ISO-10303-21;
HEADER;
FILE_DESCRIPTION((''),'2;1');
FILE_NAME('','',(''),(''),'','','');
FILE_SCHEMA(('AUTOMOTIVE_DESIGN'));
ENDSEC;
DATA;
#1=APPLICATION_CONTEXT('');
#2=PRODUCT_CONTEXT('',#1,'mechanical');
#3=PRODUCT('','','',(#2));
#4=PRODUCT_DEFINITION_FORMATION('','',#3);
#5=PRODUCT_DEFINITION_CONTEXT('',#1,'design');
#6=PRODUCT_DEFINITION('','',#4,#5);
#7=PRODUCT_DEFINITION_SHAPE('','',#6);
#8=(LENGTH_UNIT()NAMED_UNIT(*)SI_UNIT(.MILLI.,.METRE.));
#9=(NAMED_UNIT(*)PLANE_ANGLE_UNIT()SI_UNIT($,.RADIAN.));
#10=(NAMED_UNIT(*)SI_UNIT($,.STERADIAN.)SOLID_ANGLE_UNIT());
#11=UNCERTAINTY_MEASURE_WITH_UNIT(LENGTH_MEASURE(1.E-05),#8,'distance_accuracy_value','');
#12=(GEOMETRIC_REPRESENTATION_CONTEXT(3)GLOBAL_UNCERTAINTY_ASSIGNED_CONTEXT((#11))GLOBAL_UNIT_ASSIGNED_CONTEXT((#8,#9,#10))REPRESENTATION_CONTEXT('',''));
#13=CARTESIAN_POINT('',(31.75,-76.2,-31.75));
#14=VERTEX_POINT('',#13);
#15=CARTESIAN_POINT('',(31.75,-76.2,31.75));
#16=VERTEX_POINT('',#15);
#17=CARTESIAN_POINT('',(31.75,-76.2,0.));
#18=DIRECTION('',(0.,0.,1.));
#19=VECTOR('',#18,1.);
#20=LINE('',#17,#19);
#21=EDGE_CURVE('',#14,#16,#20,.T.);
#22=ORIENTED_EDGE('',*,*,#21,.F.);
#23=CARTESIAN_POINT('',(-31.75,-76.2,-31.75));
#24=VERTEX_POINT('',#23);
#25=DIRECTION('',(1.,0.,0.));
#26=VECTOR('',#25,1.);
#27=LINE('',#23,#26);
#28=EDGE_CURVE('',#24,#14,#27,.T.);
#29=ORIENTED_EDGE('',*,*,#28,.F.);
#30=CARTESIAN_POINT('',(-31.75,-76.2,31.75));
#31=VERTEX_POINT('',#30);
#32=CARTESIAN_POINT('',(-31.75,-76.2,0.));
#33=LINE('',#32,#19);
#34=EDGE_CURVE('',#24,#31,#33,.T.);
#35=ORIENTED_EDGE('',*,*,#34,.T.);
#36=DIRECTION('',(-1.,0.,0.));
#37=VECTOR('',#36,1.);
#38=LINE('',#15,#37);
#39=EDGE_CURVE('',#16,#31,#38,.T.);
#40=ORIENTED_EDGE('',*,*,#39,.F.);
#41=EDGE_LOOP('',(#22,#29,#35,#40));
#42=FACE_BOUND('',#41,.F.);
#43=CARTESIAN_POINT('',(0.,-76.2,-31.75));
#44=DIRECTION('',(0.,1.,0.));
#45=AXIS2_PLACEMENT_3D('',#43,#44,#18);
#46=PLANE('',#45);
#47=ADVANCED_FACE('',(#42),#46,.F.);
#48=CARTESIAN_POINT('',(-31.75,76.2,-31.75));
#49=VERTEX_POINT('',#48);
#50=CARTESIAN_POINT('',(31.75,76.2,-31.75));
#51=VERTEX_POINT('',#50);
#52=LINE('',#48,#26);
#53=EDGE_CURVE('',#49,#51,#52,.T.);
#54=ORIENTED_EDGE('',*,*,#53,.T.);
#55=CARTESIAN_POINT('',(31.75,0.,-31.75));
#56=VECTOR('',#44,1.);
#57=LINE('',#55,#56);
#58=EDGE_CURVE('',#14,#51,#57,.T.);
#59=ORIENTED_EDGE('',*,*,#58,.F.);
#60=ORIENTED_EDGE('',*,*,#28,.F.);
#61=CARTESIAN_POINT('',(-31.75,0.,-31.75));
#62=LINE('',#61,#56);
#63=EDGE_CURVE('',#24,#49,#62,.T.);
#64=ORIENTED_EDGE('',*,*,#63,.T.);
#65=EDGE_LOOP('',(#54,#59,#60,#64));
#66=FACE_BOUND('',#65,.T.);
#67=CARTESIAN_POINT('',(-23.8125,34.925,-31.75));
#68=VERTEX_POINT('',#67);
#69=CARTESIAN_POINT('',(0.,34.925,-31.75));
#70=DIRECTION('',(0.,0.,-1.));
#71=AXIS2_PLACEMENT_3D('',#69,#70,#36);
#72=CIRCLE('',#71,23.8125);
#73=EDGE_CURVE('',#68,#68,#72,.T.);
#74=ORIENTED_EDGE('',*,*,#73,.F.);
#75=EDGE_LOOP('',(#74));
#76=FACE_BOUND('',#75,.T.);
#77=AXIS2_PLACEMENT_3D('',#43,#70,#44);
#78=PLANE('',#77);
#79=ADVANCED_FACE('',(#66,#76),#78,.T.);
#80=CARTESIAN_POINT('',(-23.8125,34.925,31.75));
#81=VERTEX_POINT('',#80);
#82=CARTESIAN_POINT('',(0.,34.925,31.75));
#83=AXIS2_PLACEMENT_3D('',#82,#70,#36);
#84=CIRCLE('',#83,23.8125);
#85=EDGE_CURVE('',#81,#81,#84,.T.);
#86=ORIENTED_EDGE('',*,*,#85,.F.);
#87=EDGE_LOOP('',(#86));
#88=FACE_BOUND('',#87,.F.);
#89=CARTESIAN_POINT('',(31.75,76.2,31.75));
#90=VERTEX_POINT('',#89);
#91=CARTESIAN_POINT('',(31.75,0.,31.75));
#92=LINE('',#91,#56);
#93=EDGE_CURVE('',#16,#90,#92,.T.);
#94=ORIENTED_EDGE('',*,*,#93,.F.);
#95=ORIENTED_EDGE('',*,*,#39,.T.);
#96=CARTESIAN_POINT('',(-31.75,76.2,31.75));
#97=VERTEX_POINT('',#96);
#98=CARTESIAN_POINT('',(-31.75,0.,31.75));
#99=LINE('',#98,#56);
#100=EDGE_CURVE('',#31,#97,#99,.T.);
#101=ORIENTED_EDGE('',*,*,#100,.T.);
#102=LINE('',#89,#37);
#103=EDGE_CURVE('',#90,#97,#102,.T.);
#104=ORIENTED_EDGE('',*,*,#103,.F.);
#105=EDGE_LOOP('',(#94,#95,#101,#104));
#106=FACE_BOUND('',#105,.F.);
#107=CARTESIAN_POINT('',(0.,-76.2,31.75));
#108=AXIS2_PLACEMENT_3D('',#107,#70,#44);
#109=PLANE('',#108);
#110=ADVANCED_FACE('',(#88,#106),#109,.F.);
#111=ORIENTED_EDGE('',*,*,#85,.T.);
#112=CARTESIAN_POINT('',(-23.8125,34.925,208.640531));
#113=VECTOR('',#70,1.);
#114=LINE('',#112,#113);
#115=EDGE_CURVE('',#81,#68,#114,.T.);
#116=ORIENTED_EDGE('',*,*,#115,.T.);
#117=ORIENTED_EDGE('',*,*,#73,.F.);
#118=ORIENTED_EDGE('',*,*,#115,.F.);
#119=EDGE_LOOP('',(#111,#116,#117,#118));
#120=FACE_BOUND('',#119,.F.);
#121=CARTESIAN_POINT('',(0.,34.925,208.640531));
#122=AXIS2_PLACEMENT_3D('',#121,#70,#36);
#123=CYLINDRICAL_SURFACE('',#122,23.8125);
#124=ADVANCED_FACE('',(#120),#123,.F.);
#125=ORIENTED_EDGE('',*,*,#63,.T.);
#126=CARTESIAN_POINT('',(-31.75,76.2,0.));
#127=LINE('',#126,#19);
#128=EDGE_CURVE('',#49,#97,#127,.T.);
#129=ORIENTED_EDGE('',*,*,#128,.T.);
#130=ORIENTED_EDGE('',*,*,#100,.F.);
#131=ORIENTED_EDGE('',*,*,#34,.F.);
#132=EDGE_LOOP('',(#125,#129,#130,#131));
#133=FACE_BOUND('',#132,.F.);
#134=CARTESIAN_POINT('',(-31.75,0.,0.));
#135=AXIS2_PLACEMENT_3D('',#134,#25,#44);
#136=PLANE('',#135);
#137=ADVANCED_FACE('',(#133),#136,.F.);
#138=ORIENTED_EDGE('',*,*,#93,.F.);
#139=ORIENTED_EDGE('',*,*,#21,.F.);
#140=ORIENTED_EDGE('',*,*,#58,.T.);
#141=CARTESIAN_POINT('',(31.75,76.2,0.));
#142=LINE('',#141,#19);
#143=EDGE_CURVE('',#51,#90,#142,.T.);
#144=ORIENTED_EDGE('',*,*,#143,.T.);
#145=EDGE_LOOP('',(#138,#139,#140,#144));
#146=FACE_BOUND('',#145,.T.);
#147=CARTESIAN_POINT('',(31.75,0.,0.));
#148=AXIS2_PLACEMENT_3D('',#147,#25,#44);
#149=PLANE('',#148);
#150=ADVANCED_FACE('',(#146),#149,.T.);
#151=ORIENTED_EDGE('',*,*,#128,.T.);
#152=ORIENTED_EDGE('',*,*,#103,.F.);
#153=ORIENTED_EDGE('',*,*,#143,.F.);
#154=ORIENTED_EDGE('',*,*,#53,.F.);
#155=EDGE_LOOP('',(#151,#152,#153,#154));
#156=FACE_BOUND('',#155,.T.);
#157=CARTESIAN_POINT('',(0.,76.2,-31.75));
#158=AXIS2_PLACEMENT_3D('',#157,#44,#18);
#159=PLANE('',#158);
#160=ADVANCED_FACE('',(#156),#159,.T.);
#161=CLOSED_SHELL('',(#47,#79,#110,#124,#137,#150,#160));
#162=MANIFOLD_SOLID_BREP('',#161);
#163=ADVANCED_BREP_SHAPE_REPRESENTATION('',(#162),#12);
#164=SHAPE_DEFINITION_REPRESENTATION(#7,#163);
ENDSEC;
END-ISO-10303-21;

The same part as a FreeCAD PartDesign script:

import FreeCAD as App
import Part
import Sketcher
Q = App.Units.Quantity


def add_polygon(sketch, points):
    """Adds a closed chain of lines whose ends are joined by coincident constraints."""
    first, n = sketch.GeometryCount, len(points)
    for a, b in zip(points, points[1:] + points[:1]):
        sketch.addGeometry(Part.LineSegment(App.Vector(*a, 0), App.Vector(*b, 0)), False)
    for i in range(n):
        sketch.addConstraint(Sketcher.Constraint("Coincident", first + i, 2, first + (i + 1) % n, 1))

doc = App.newDocument("Part")
body = doc.addObject("PartDesign::Body", "Body")

# Sketch on YZ plane
sketch1 = body.newObject("Sketcher::SketchObject", "Sketch")
sketch1.AttachmentSupport = (doc.getObject("YZ_Plane"), [""])
sketch1.MapMode = "FlatFace"
add_polygon(sketch1, [(-76, 32), (-76, -32), (76, -32), (76, 32)])  # lines 0-3
sketch1.addConstraint(Sketcher.Constraint("Vertical", 0))
sketch1.addConstraint(Sketcher.Constraint("Horizontal", 1))
sketch1.addConstraint(Sketcher.Constraint("Vertical", 2))
sketch1.addConstraint(Sketcher.Constraint("Horizontal", 3))
sketch1.addConstraint(Sketcher.Constraint("Symmetric", 0, 2, 2, 2, -1, 1))
sketch1.addConstraint(Sketcher.Constraint("DistanceX", 1, 1, 1, 2, Q("6 in")))
sketch1.addConstraint(Sketcher.Constraint("DistanceY", 0, 2, 0, 1, Q("2.5 in")))
pad1 = body.newObject("PartDesign::Pad", "Pad")
pad1.Profile = sketch1
pad1.Length = Q("2.5 in")
pad1.Midplane = True

# Sketch on XY plane
sketch2 = body.newObject("Sketcher::SketchObject", "Sketch001")
sketch2.AttachmentSupport = (doc.getObject("XY_Plane"), [""])
sketch2.MapMode = "FlatFace"
sketch2.AttachmentOffset = App.Placement(App.Vector(0, 0, 1.25 * 25.4), App.Rotation())
sketch2.addGeometry(Part.Circle(App.Vector(0, 35, 0), App.Vector(0, 0, 1), 24), False)
sketch2.addConstraint(Sketcher.Constraint("PointOnObject", 0, 3, -2))
sketch2.addConstraint(Sketcher.Constraint("Diameter", 0, Q("1.875 in")))
sketch2.addConstraint(Sketcher.Constraint("DistanceY", -1, 1, 0, 3, Q("1.375 in")))
doc.recompute()
hole = body.newObject("PartDesign::Hole", "Hole")
hole.Profile = sketch2
hole.ThreadType = "None"
hole.Diameter = Q("1.875 in")
hole.DepthType = "ThroughAll"

doc.recompute()
